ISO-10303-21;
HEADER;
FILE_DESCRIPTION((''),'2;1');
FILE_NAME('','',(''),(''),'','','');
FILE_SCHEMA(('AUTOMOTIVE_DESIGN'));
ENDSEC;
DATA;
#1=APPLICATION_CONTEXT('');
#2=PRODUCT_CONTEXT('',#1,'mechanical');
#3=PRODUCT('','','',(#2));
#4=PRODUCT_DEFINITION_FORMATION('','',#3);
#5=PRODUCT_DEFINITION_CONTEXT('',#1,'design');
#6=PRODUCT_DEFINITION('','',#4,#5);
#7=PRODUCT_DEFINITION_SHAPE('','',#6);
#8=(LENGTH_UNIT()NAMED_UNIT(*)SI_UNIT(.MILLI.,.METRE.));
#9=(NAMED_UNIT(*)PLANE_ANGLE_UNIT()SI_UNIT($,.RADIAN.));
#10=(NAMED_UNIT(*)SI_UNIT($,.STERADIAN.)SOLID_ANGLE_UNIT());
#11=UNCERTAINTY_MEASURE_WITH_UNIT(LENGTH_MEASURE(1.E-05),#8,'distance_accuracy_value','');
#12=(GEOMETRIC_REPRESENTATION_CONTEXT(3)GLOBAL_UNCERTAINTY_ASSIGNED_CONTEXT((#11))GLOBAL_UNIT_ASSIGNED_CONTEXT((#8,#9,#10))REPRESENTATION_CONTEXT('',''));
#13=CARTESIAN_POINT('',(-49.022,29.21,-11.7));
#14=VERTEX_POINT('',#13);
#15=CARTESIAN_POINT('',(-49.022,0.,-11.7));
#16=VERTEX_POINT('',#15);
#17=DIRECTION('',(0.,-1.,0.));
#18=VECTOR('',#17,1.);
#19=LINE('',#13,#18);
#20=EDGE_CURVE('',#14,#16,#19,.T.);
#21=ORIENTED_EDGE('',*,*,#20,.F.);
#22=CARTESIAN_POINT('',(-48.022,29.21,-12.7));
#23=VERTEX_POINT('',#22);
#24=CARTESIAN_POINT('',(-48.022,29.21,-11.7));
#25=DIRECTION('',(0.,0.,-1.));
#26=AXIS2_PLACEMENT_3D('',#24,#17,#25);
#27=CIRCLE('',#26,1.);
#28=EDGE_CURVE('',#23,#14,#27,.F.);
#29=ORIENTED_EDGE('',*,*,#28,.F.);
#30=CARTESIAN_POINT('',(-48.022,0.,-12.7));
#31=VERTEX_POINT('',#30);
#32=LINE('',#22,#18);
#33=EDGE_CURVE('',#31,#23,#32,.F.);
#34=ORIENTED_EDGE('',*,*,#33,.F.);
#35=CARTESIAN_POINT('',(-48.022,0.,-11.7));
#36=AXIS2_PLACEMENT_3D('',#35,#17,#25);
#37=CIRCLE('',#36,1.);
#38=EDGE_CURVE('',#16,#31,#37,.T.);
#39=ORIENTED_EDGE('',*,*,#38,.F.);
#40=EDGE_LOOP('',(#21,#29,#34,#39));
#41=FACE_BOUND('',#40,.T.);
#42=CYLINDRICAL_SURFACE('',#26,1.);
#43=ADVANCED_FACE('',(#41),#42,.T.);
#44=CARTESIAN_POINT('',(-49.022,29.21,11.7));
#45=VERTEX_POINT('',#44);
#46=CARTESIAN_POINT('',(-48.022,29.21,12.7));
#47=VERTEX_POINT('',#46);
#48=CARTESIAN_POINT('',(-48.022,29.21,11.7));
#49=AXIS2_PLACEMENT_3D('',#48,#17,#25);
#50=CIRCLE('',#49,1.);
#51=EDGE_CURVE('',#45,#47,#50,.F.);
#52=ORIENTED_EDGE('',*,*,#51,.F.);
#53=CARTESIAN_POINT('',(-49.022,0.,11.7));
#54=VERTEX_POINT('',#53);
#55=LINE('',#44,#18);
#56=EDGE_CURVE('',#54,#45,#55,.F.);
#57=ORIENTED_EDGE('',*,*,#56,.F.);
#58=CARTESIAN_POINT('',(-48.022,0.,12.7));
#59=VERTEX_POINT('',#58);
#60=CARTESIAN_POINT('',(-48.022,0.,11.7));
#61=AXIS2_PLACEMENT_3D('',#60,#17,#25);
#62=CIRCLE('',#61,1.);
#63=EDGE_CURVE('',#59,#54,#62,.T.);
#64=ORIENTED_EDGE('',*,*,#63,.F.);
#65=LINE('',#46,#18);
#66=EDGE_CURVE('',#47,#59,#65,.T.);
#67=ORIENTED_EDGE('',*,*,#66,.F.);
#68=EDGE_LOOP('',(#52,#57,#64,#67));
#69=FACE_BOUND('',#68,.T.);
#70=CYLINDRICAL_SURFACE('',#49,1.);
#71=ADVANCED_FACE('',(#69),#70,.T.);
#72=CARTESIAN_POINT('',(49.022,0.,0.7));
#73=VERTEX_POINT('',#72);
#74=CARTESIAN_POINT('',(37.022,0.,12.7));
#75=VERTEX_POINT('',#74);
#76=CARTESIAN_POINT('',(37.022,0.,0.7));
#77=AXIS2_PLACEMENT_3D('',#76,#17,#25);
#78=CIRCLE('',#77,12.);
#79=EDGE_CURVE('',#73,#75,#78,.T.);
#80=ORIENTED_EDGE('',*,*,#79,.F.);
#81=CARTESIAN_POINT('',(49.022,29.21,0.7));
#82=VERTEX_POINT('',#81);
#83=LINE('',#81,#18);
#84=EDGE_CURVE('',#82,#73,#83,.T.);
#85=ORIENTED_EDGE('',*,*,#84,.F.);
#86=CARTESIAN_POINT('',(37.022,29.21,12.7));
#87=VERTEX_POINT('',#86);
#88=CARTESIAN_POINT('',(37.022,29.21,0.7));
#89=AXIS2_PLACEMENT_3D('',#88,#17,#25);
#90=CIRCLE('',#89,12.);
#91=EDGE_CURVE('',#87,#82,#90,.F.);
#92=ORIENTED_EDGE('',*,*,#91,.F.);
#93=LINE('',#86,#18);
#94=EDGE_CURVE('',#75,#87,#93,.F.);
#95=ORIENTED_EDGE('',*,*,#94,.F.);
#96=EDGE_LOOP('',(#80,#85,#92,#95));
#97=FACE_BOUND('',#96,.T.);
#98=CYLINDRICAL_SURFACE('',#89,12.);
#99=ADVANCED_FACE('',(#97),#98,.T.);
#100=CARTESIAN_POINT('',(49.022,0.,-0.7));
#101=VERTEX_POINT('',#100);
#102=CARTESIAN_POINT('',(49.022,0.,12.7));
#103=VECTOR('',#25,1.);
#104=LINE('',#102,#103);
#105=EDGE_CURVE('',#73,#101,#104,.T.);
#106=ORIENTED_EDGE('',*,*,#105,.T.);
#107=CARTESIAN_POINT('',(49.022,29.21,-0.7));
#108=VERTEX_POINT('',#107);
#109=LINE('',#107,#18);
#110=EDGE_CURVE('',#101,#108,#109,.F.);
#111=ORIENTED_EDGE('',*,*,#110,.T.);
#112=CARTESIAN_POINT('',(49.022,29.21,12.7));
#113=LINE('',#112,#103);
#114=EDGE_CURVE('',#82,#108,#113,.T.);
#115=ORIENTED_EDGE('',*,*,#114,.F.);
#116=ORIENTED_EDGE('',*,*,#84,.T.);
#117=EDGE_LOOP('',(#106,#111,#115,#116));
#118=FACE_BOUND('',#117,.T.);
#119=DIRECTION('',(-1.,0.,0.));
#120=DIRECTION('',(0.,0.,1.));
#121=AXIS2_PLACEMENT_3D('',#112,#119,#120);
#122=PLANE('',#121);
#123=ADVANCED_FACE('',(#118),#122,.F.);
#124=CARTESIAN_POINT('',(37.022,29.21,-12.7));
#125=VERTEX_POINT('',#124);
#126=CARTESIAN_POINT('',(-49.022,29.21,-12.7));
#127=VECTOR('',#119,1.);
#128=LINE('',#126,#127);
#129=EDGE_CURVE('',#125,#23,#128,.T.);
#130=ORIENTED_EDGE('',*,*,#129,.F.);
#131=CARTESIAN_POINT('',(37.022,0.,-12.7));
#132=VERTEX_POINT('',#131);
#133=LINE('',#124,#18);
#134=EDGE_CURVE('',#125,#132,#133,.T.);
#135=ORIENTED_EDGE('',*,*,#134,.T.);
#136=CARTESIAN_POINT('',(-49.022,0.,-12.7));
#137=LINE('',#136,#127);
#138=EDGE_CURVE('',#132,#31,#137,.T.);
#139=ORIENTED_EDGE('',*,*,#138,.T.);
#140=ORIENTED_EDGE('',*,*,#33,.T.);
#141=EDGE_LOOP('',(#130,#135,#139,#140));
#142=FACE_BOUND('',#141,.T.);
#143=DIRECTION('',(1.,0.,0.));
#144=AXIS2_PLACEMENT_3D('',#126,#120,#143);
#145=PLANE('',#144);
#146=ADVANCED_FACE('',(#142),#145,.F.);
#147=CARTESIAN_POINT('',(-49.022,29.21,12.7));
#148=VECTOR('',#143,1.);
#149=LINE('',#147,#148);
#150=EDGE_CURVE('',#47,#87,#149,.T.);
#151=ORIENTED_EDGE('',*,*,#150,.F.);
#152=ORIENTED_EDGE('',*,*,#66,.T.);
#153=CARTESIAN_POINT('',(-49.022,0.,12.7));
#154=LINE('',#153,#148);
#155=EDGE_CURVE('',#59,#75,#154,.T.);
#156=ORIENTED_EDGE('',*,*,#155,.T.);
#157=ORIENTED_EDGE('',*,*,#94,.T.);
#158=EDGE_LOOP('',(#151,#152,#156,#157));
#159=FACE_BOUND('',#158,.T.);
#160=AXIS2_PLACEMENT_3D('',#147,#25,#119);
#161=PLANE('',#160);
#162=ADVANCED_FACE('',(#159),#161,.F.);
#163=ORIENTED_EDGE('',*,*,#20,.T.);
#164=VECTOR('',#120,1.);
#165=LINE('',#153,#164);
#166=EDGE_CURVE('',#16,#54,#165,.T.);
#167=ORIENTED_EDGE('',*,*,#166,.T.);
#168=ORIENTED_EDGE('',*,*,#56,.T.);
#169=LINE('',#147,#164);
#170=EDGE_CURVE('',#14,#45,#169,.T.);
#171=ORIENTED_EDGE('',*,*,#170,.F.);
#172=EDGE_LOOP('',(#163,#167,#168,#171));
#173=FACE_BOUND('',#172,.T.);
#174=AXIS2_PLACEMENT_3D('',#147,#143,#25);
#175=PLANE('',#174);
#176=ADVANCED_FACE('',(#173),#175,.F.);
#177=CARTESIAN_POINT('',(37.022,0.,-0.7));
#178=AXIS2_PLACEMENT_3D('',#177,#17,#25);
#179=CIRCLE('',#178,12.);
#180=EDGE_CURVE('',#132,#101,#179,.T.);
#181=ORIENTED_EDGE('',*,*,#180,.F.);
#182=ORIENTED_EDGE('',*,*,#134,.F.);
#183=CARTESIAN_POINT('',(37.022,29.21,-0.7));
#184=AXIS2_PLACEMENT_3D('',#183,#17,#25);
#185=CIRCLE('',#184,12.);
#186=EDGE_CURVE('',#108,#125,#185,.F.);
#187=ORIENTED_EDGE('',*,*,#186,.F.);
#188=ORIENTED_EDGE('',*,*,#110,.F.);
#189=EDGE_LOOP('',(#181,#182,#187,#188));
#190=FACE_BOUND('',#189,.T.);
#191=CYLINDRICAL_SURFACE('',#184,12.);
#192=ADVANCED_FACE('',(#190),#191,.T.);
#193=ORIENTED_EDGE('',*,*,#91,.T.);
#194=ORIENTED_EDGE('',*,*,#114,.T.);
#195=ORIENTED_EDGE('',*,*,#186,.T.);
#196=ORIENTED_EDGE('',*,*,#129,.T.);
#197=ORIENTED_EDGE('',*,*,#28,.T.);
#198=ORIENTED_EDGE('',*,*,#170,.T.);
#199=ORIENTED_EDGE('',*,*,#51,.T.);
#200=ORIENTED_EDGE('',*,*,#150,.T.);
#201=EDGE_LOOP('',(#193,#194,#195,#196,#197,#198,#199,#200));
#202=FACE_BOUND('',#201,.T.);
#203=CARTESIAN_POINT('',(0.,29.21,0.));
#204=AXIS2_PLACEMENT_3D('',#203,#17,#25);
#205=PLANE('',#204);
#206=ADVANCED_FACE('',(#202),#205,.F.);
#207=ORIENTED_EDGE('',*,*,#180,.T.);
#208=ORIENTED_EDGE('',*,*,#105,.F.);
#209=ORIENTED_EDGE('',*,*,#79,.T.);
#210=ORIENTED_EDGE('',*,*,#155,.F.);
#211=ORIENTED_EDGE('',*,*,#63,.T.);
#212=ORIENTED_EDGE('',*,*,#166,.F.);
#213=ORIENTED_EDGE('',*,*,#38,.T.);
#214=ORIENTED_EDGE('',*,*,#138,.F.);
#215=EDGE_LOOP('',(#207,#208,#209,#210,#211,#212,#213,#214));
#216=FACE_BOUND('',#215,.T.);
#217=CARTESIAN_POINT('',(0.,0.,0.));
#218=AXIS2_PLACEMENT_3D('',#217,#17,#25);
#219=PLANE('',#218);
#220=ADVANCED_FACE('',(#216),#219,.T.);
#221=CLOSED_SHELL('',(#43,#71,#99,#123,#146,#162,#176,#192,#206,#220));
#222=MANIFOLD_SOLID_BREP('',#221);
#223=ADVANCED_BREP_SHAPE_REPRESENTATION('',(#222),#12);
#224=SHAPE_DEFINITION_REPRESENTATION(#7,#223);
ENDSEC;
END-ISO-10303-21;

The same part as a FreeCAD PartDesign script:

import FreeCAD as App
import Part
import Sketcher
from FreeCAD import Vector
Q = App.Units.Quantity


def edges_at(feature, points):
    """Names of the edges that pass closest to the given points."""
    edges = feature.Shape.Edges
    near = lambda p: min(range(len(edges)), key=lambda i: edges[i].distToShape(Part.Vertex(*p))[0])
    return sorted({f"Edge{near(p) + 1}" for p in points})


def add_polygon(sketch, points):
    """Adds a closed chain of lines whose ends are joined by coincident constraints."""
    first, n = sketch.GeometryCount, len(points)
    for a, b in zip(points, points[1:] + points[:1]):
        sketch.addGeometry(Part.LineSegment(App.Vector(*a, 0), App.Vector(*b, 0)), False)
    for i in range(n):
        sketch.addConstraint(Sketcher.Constraint("Coincident", first + i, 2, first + (i + 1) % n, 1))

doc = App.newDocument("Part")
body = doc.addObject("PartDesign::Body", "Body")

sketch1 = doc.addObject("Sketcher::SketchObject", "Sketch")
body.addObject(sketch1)
sketch1.AttachmentSupport = (doc.XZ_Plane, [""])
sketch1.MapMode = "FlatFace"
add_polygon(sketch1, [(-49.022, -12.7), (-49.022, 12.7), (49.022, 12.7), (49.022, -12.7)])
sketch1.addConstraint([
    Sketcher.Constraint("Vertical", 0),
    Sketcher.Constraint("Horizontal", 1),
    Sketcher.Constraint("Vertical", 2),
    Sketcher.Constraint("Horizontal", 3),
    Sketcher.Constraint("Symmetric", 0, 2, 2, 2, -1, 1),
    Sketcher.Constraint("DistanceY", 0, 1, 0, 2, Q("1 in")),
    Sketcher.Constraint("DistanceX", 1, 1, 1, 2, Q("3.86 in")),
])
pad1 = doc.addObject("PartDesign::Pad", "Pad")
body.addObject(pad1)
pad1.Profile = sketch1
pad1.Length = Q("1.15 in")
pad1.Reversed = True
doc.recompute()

fillet = doc.addObject("PartDesign::Fillet", "Fillet")
body.addObject(fillet)
fillet.Base = (pad1, edges_at(pad1, [(49.022, 14.605, 12.7), (49.022, 14.605, -12.7)]))
fillet.Radius = 12
doc.recompute()

fillet2 = doc.addObject("PartDesign::Fillet", "Fillet001")
body.addObject(fillet2)
fillet2.Base = (fillet, edges_at(fillet, [(-49.022, 14.605, 12.7), (-49.022, 14.605, -12.7)]))
fillet2.Radius = 1

doc.recompute()
